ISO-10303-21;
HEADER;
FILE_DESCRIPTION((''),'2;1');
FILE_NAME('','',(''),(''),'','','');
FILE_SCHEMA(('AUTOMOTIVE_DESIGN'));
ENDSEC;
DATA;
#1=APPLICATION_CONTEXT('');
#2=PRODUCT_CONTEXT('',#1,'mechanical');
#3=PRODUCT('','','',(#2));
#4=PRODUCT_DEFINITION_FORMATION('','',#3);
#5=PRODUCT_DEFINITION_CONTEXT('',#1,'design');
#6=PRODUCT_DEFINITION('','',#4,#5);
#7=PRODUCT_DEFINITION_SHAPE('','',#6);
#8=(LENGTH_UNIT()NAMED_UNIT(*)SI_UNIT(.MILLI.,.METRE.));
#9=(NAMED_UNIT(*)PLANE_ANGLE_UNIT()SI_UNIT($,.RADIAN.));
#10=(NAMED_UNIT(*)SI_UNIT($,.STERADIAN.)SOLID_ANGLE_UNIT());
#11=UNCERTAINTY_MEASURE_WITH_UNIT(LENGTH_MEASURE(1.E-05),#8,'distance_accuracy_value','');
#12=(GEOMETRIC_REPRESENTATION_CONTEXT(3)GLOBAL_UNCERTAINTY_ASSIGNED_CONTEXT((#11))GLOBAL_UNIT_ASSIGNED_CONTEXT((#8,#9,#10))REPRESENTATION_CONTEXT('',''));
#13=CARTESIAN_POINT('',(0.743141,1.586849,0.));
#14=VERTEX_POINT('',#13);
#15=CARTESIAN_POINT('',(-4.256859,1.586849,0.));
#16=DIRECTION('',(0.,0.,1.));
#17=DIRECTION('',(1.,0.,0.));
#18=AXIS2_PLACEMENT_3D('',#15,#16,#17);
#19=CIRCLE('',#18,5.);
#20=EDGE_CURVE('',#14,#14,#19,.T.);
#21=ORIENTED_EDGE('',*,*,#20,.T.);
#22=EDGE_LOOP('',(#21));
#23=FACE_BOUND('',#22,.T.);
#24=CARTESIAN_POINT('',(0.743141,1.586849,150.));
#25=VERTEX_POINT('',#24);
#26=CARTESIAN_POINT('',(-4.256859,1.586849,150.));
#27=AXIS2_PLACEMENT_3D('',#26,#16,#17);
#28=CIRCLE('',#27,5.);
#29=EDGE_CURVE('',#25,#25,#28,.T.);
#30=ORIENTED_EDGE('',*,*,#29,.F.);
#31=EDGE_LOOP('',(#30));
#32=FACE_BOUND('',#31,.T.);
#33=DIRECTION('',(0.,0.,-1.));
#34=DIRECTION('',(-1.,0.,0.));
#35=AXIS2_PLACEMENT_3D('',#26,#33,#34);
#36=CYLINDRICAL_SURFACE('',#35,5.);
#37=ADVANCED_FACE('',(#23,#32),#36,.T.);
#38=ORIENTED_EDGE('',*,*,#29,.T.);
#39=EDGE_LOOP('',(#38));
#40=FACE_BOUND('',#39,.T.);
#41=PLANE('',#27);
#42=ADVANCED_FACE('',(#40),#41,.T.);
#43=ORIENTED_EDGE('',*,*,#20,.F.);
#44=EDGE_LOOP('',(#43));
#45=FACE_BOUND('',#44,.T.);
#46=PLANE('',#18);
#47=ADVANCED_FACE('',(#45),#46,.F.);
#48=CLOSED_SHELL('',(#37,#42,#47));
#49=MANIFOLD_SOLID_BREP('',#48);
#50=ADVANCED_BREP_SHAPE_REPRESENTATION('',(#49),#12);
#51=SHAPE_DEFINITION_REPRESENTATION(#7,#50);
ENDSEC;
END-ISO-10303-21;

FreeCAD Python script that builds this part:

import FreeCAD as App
import Part
import Sketcher
from FreeCAD import Vector

doc = App.newDocument("Part")
params = doc.addObject("Spreadsheet::Sheet", "Params")
for row, (alias, value) in enumerate([
    ("sketch1_diameter", "10 mm"),
    ("pad1_length", "150 mm"),
], start=1):
    params.set(f"A{row}", alias)
    params.set(f"B{row}", "=" + value)
    params.setAlias(f"B{row}", alias)

body = doc.addObject("PartDesign::Body", "Body")

# Sketch on XY plane
sketch1 = doc.addObject("Sketcher::SketchObject", "Sketch")
body.addObject(sketch1)
sketch1.AttachmentSupport = (doc.XY_Plane, [""])
sketch1.MapMode = "FlatFace"
sketch1.addGeometry(Part.Circle(Vector(-4.256859, 1.586849, 0), Vector(0, 0, 1), 5), False)
sketch1.addConstraint(Sketcher.Constraint("Diameter", 0, 10.0))
sketch1.addConstraint(Sketcher.Constraint("DistanceX", 0, 3, -1, 1, 4.256859))
sketch1.addConstraint(Sketcher.Constraint("DistanceY", -1, 1, 0, 3, 1.586849))
sketch1.setExpression("Constraints[0]", "Params.sketch1_diameter")
pad1 = doc.addObject("PartDesign::Pad", "Pad")
body.addObject(pad1)
pad1.Profile = sketch1
pad1.setExpression("Length", "Params.pad1_length")

doc.recompute()
